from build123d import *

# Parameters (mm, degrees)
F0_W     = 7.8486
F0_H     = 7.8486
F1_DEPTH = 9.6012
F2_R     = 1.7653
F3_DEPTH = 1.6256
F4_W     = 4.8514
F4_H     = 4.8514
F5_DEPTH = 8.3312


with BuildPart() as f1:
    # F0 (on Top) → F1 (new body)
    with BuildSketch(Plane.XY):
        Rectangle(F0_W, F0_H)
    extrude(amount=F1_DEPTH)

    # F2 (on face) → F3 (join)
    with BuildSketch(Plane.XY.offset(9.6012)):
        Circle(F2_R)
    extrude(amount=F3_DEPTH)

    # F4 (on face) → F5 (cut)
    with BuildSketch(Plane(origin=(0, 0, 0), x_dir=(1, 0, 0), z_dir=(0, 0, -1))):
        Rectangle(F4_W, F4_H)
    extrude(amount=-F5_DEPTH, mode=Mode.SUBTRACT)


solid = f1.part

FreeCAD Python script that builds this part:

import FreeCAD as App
import Part
import Sketcher
Q = App.Units.Quantity

doc = App.newDocument("Part")
body = doc.addObject("PartDesign::Body", "Body")

# Sketch on XY plane
sketch1 = doc.addObject("Sketcher::SketchObject", "Sketch")
body.addObject(sketch1)
sketch1.AttachmentSupport = (doc.XY_Plane, [""])
sketch1.MapMode = "FlatFace"
sketch1.addGeometry([
    Part.LineSegment(App.Vector(-4, 4, 0), App.Vector(-4, -4, 0)),
    Part.LineSegment(App.Vector(-4, -4, 0), App.Vector(4, -4, 0)),
    Part.LineSegment(App.Vector(4, -4, 0), App.Vector(4, 4, 0)),
    Part.LineSegment(App.Vector(4, 4, 0), App.Vector(-4, 4, 0)),
], False)
sketch1.addConstraint([
    Sketcher.Constraint("Coincident", 0, 2, 1, 1),
    Sketcher.Constraint("Coincident", 1, 2, 2, 1),
    Sketcher.Constraint("Coincident", 2, 2, 3, 1),
    Sketcher.Constraint("Coincident", 3, 2, 0, 1),
    Sketcher.Constraint("Vertical", 0),
    Sketcher.Constraint("Horizontal", 1),
    Sketcher.Constraint("Vertical", 2),
    Sketcher.Constraint("Horizontal", 3),
    Sketcher.Constraint("Symmetric", 0, 2, 2, 2, -1, 1),
    Sketcher.Constraint("Equal", 3, 0),
    Sketcher.Constraint("DistanceX", 1, 1, 1, 2, Q("0.309 in")),
])
pad1 = doc.addObject("PartDesign::Pad", "Pad")
body.addObject(pad1)
pad1.Profile = sketch1
pad1.Length = Q("0.378 in")

# Sketch on XY plane
sketch2 = doc.addObject("Sketcher::SketchObject", "Sketch001")
body.addObject(sketch2)
sketch2.AttachmentSupport = (doc.XY_Plane, [""])
sketch2.MapMode = "FlatFace"
sketch2.AttachmentOffset = App.Placement(App.Vector(0, 0, 0.378 * 25.4), App.Rotation())
sketch2.addGeometry(Part.Circle(App.Vector(0, 0, 0), App.Vector(0, 0, 1), 1.8), False)
sketch2.addConstraint([
    Sketcher.Constraint("Coincident", 0, 3, -1, 1),
    Sketcher.Constraint("Diameter", 0, Q("0.139 in")),
])
pad2 = doc.addObject("PartDesign::Pad", "Pad001")
body.addObject(pad2)
pad2.Profile = sketch2
pad2.Length = Q("0.064 in")

# Sketch on XY plane
sketch3 = doc.addObject("Sketcher::SketchObject", "Sketch002")
body.addObject(sketch3)
sketch3.AttachmentSupport = (doc.XY_Plane, [""])
sketch3.MapMode = "FlatFace"
sketch3.addGeometry([
    Part.LineSegment(App.Vector(-2.4, -2.4, 0), App.Vector(-2.4, 2.4, 0)),
    Part.LineSegment(App.Vector(-2.4, 2.4, 0), App.Vector(2.4, 2.4, 0)),
    Part.LineSegment(App.Vector(2.4, 2.4, 0), App.Vector(2.4, -2.4, 0)),
    Part.LineSegment(App.Vector(2.4, -2.4, 0), App.Vector(-2.4, -2.4, 0)),
], False)
sketch3.addConstraint([
    Sketcher.Constraint("Coincident", 0, 2, 1, 1),
    Sketcher.Constraint("Coincident", 1, 2, 2, 1),
    Sketcher.Constraint("Coincident", 2, 2, 3, 1),
    Sketcher.Constraint("Coincident", 3, 2, 0, 1),
    Sketcher.Constraint("Vertical", 0),
    Sketcher.Constraint("Horizontal", 1),
    Sketcher.Constraint("Vertical", 2),
    Sketcher.Constraint("Horizontal", 3),
    Sketcher.Constraint("Symmetric", 0, 2, 2, 2, -1, 1),
    Sketcher.Constraint("Equal", 3, 0),
    Sketcher.Constraint("DistanceX", 1, 1, 1, 2, Q("0.191 in")),
])
pocket1 = doc.addObject("PartDesign::Pocket", "Pocket")
body.addObject(pocket1)
pocket1.Profile = sketch3
pocket1.Length = Q("0.328 in")
pocket1.Reversed = True

doc.recompute()
